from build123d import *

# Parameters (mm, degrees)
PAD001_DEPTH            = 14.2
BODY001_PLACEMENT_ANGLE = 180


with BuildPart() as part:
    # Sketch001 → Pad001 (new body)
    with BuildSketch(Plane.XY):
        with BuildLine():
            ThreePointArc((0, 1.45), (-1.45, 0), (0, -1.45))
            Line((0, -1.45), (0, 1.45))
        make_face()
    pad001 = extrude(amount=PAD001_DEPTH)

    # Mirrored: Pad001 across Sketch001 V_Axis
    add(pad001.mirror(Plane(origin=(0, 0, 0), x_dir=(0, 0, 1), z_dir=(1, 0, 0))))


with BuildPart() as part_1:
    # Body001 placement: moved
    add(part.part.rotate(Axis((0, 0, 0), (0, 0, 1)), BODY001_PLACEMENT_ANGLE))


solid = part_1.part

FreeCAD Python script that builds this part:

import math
import FreeCAD as App
import Part
import Sketcher

V = App.Vector
Q = App.Units.Quantity

doc = App.newDocument("Part")
params = doc.addObject("Spreadsheet::Sheet", "Params")
for row, (alias, value) in enumerate([
    ("sketch1_radius", "1.45 mm"),
    ("pad1_length", "14.2 mm"),
], start=1):
    params.set(f"A{row}", alias)
    params.set(f"B{row}", "=" + value)
    params.setAlias(f"B{row}", alias)

body = doc.addObject("PartDesign::Body", "Body")

# Sketch on XY plane
sketch1 = body.newObject("Sketcher::SketchObject", "Sketch")
sketch1.AttachmentSupport = (doc.getObject("XY_Plane"), [""])
sketch1.MapMode = "FlatFace"
sketch1.addGeometry([
    Part.ArcOfCircle(Part.Circle(V(0, 0, 0), V(0, 0, 1), 1.45), math.radians(90), math.radians(270)),
    Part.LineSegment(V(0, -1.45, 0), V(0, 1.45, 0)),
], False)
sketch1.addConstraint([
    Sketcher.Constraint("Coincident", 0, 1, 1, 2),
    Sketcher.Constraint("Coincident", 1, 1, 0, 2),
    Sketcher.Constraint("Vertical", 1),
    Sketcher.Constraint("Coincident", 0, 3, -1, 1),
    Sketcher.Constraint("PointOnObject", 0, 1, -2),
    Sketcher.Constraint("Radius", 0, Q("1.45 mm")),
])
sketch1.setExpression("Constraints[5]", "Params.sketch1_radius")
pad1 = body.newObject("PartDesign::Pad", "Pad")
pad1.Profile = sketch1
pad1.setExpression("Length", "Params.pad1_length")
doc.recompute()

mirrored = body.newObject("PartDesign::Mirrored", "Mirrored")
mirrored.Originals = [pad1]
mirrored.MirrorPlane = (doc.getObject("YZ_Plane"), [""])
body.Tip = mirrored
body2 = doc.addObject("PartDesign::Body", "Body001")
doc.recompute()

body.Placement = App.Placement(V(0, 0, 0), App.Rotation(V(0, 0, 1), 180))
boolean = body2.newObject("PartDesign::Boolean", "Boolean")
boolean.Type = "Fuse"
boolean.addObjects([body])

doc.recompute()
